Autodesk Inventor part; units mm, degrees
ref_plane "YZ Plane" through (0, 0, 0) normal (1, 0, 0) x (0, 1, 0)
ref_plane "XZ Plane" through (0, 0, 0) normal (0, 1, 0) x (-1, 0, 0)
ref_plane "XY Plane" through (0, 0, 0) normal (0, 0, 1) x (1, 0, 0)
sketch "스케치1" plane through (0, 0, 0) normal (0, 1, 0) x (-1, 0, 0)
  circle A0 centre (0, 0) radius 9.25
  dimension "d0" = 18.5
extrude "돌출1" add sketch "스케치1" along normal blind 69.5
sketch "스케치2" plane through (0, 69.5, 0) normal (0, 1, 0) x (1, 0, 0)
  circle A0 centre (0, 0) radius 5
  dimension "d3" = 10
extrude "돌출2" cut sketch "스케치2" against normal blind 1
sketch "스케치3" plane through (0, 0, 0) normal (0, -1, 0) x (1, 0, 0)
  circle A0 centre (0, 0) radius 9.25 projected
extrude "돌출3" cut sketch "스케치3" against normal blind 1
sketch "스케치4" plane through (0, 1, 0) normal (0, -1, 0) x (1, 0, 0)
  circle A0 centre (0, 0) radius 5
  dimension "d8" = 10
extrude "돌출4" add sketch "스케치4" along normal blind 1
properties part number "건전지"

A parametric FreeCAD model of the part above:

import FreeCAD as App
import Part
import Sketcher
from FreeCAD import Vector
Q = App.Units.Quantity

doc = App.newDocument("Part")
body = doc.addObject("PartDesign::Body", "Body")

sketch1 = body.newObject("Sketcher::SketchObject", "Sketch")
sketch1.AttachmentSupport = (doc.getObject("XZ_Plane"), [""])
sketch1.MapMode = "FlatFace"
sketch1.addGeometry(Part.Circle(Vector(0, 0, 0), Vector(0, 0, 1), 9), False)
sketch1.addConstraint(Sketcher.Constraint("Coincident", 0, 3, -1, 1))
sketch1.addConstraint(Sketcher.Constraint("Diameter", 0, Q("18.5 mm")))
pad1 = body.newObject("PartDesign::Pad", "Pad")
pad1.Profile = sketch1
pad1.Length = 69.5
pad1.Reversed = True

sketch2 = body.newObject("Sketcher::SketchObject", "Sketch001")
sketch2.AttachmentSupport = (doc.getObject("XZ_Plane"), [""])
sketch2.MapMode = "FlatFace"
sketch2.AttachmentOffset = App.Placement(Vector(0, 0, -69.5), App.Rotation())
sketch2.addGeometry(Part.Circle(Vector(0, 0, 0), Vector(0, 0, 1), 5), False)
sketch2.addConstraint(Sketcher.Constraint("Coincident", 0, 3, -1, 1))
sketch2.addConstraint(Sketcher.Constraint("Diameter", 0, Q("10 mm")))
pocket1 = body.newObject("PartDesign::Pocket", "Pocket")
pocket1.Profile = sketch2
pocket1.Length = 1
pocket1.Reversed = True

sketch3 = body.newObject("Sketcher::SketchObject", "Sketch002")
sketch3.AttachmentSupport = (doc.getObject("XZ_Plane"), [""])
sketch3.MapMode = "FlatFace"
sketch3.addGeometry(Part.Circle(Vector(0, 0, 0), Vector(0, 0, 1), 9), False)
sketch3.addConstraint(Sketcher.Constraint("Coincident", 0, 3, -1, 1))
sketch3.addConstraint(Sketcher.Constraint("Diameter", 0, Q("18.5 mm")))
pocket2 = body.newObject("PartDesign::Pocket", "Pocket001")
pocket2.Profile = sketch3
pocket2.Length = 1

sketch4 = body.newObject("Sketcher::SketchObject", "Sketch003")
sketch4.AttachmentSupport = (doc.getObject("XZ_Plane"), [""])
sketch4.MapMode = "FlatFace"
sketch4.AttachmentOffset = App.Placement(Vector(0, 0, -1), App.Rotation())
sketch4.addGeometry(Part.Circle(Vector(0, 0, 0), Vector(0, 0, 1), 5), False)
sketch4.addConstraint(Sketcher.Constraint("Coincident", 0, 3, -1, 1))
sketch4.addConstraint(Sketcher.Constraint("Diameter", 0, Q("10 mm")))
pad2 = body.newObject("PartDesign::Pad", "Pad001")
pad2.Profile = sketch4
pad2.Length = 1

doc.recompute()
